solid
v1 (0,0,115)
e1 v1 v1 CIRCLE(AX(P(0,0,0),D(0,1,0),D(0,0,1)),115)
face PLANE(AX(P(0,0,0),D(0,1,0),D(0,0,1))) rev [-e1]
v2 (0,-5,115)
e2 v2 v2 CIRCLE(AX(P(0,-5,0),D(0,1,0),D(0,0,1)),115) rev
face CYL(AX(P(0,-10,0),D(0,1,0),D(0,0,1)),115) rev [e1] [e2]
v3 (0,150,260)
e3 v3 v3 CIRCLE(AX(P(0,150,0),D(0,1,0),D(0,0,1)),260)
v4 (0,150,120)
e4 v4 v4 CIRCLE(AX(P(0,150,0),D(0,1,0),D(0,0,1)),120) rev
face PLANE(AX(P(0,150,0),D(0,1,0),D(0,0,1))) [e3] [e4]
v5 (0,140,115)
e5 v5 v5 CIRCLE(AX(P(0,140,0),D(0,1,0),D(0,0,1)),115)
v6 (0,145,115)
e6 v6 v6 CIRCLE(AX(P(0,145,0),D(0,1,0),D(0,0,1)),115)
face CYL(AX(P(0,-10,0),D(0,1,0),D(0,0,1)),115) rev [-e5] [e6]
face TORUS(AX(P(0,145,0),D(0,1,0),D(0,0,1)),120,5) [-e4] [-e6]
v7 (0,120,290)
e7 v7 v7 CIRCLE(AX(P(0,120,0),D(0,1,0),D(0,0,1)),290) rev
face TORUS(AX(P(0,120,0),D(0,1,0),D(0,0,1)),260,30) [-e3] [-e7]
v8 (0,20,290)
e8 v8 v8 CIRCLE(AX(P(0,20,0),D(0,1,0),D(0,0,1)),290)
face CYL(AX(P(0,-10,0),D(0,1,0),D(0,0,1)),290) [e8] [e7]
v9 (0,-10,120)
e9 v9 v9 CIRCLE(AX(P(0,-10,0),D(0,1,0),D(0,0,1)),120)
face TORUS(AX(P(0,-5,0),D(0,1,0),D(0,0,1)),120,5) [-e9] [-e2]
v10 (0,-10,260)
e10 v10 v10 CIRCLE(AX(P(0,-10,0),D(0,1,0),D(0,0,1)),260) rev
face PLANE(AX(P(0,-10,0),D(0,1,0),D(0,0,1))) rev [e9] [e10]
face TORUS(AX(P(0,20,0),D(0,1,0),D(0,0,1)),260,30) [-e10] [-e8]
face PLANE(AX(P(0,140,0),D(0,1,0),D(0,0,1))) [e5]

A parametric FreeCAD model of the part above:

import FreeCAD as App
import Part
import Sketcher
from FreeCAD import Vector
Q = App.Units.Quantity


def edges_at(feature, points):
    """Names of the edges that pass closest to the given points."""
    edges = feature.Shape.Edges
    near = lambda p: min(range(len(edges)), key=lambda i: edges[i].distToShape(Part.Vertex(*p))[0])
    return sorted({f"Edge{near(p) + 1}" for p in points})

doc = App.newDocument("Part")
body = doc.addObject("PartDesign::Body", "Body")

# Sketch on XZ plane
sketch1 = body.newObject("Sketcher::SketchObject", "Sketch")
sketch1.AttachmentSupport = (doc.getObject("XZ_Plane"), [""])
sketch1.MapMode = "FlatFace"
sketch1.addGeometry(Part.Circle(Vector(0, 0, 0), Vector(0, 0, 1), 115), False)
sketch1.addConstraint([
    Sketcher.Constraint("Coincident", 0, 3, -1, 1),
    Sketcher.Constraint("Diameter", 0, Q("230 mm")),
])
pad1 = body.newObject("PartDesign::Pad", "Pad")
pad1.Profile = sketch1
pad1.Length = 140
pad1.Reversed = True

# Sketch on XZ plane
sketch2 = body.newObject("Sketcher::SketchObject", "Sketch001")
sketch2.AttachmentSupport = (doc.getObject("XZ_Plane"), [""])
sketch2.MapMode = "FlatFace"
sketch2.AttachmentOffset = App.Placement(Vector(0, 0, -70), App.Rotation())
sketch2.addGeometry([
    Part.Circle(Vector(0, 0, 0), Vector(0, 0, 1), 290),
    Part.Circle(Vector(0, 0, 0), Vector(0, 0, 1), 115),
], False)
sketch2.addConstraint([
    Sketcher.Constraint("Coincident", 0, 3, -1, 1),
    Sketcher.Constraint("Coincident", 1, 3, -1, 1),
    Sketcher.Constraint("Diameter", 0, Q("580 mm")),
    Sketcher.Constraint("Diameter", 1, Q("230 mm")),
])
pad2 = body.newObject("PartDesign::Pad", "Pad001")
pad2.Profile = sketch2
pad2.Type = "TwoLengths"
pad2.Length = 80
pad2.Length2 = 80
pad2.Reversed = True
doc.recompute()

fillet = body.newObject("PartDesign::Fillet", "Fillet")
fillet.Base = (pad2, edges_at(pad2, [(0, -10, -290), (0, 150, -290)]))
fillet.Radius = 30
doc.recompute()

fillet2 = body.newObject("PartDesign::Fillet", "Fillet001")
fillet2.Base = (fillet, edges_at(fillet, [(0, -10, -115)]))
fillet2.Radius = 5
doc.recompute()

fillet3 = body.newObject("PartDesign::Fillet", "Fillet002")
fillet3.Base = (fillet2, edges_at(fillet2, [(0, 150, -115)]))
fillet3.Radius = 5

doc.recompute()
